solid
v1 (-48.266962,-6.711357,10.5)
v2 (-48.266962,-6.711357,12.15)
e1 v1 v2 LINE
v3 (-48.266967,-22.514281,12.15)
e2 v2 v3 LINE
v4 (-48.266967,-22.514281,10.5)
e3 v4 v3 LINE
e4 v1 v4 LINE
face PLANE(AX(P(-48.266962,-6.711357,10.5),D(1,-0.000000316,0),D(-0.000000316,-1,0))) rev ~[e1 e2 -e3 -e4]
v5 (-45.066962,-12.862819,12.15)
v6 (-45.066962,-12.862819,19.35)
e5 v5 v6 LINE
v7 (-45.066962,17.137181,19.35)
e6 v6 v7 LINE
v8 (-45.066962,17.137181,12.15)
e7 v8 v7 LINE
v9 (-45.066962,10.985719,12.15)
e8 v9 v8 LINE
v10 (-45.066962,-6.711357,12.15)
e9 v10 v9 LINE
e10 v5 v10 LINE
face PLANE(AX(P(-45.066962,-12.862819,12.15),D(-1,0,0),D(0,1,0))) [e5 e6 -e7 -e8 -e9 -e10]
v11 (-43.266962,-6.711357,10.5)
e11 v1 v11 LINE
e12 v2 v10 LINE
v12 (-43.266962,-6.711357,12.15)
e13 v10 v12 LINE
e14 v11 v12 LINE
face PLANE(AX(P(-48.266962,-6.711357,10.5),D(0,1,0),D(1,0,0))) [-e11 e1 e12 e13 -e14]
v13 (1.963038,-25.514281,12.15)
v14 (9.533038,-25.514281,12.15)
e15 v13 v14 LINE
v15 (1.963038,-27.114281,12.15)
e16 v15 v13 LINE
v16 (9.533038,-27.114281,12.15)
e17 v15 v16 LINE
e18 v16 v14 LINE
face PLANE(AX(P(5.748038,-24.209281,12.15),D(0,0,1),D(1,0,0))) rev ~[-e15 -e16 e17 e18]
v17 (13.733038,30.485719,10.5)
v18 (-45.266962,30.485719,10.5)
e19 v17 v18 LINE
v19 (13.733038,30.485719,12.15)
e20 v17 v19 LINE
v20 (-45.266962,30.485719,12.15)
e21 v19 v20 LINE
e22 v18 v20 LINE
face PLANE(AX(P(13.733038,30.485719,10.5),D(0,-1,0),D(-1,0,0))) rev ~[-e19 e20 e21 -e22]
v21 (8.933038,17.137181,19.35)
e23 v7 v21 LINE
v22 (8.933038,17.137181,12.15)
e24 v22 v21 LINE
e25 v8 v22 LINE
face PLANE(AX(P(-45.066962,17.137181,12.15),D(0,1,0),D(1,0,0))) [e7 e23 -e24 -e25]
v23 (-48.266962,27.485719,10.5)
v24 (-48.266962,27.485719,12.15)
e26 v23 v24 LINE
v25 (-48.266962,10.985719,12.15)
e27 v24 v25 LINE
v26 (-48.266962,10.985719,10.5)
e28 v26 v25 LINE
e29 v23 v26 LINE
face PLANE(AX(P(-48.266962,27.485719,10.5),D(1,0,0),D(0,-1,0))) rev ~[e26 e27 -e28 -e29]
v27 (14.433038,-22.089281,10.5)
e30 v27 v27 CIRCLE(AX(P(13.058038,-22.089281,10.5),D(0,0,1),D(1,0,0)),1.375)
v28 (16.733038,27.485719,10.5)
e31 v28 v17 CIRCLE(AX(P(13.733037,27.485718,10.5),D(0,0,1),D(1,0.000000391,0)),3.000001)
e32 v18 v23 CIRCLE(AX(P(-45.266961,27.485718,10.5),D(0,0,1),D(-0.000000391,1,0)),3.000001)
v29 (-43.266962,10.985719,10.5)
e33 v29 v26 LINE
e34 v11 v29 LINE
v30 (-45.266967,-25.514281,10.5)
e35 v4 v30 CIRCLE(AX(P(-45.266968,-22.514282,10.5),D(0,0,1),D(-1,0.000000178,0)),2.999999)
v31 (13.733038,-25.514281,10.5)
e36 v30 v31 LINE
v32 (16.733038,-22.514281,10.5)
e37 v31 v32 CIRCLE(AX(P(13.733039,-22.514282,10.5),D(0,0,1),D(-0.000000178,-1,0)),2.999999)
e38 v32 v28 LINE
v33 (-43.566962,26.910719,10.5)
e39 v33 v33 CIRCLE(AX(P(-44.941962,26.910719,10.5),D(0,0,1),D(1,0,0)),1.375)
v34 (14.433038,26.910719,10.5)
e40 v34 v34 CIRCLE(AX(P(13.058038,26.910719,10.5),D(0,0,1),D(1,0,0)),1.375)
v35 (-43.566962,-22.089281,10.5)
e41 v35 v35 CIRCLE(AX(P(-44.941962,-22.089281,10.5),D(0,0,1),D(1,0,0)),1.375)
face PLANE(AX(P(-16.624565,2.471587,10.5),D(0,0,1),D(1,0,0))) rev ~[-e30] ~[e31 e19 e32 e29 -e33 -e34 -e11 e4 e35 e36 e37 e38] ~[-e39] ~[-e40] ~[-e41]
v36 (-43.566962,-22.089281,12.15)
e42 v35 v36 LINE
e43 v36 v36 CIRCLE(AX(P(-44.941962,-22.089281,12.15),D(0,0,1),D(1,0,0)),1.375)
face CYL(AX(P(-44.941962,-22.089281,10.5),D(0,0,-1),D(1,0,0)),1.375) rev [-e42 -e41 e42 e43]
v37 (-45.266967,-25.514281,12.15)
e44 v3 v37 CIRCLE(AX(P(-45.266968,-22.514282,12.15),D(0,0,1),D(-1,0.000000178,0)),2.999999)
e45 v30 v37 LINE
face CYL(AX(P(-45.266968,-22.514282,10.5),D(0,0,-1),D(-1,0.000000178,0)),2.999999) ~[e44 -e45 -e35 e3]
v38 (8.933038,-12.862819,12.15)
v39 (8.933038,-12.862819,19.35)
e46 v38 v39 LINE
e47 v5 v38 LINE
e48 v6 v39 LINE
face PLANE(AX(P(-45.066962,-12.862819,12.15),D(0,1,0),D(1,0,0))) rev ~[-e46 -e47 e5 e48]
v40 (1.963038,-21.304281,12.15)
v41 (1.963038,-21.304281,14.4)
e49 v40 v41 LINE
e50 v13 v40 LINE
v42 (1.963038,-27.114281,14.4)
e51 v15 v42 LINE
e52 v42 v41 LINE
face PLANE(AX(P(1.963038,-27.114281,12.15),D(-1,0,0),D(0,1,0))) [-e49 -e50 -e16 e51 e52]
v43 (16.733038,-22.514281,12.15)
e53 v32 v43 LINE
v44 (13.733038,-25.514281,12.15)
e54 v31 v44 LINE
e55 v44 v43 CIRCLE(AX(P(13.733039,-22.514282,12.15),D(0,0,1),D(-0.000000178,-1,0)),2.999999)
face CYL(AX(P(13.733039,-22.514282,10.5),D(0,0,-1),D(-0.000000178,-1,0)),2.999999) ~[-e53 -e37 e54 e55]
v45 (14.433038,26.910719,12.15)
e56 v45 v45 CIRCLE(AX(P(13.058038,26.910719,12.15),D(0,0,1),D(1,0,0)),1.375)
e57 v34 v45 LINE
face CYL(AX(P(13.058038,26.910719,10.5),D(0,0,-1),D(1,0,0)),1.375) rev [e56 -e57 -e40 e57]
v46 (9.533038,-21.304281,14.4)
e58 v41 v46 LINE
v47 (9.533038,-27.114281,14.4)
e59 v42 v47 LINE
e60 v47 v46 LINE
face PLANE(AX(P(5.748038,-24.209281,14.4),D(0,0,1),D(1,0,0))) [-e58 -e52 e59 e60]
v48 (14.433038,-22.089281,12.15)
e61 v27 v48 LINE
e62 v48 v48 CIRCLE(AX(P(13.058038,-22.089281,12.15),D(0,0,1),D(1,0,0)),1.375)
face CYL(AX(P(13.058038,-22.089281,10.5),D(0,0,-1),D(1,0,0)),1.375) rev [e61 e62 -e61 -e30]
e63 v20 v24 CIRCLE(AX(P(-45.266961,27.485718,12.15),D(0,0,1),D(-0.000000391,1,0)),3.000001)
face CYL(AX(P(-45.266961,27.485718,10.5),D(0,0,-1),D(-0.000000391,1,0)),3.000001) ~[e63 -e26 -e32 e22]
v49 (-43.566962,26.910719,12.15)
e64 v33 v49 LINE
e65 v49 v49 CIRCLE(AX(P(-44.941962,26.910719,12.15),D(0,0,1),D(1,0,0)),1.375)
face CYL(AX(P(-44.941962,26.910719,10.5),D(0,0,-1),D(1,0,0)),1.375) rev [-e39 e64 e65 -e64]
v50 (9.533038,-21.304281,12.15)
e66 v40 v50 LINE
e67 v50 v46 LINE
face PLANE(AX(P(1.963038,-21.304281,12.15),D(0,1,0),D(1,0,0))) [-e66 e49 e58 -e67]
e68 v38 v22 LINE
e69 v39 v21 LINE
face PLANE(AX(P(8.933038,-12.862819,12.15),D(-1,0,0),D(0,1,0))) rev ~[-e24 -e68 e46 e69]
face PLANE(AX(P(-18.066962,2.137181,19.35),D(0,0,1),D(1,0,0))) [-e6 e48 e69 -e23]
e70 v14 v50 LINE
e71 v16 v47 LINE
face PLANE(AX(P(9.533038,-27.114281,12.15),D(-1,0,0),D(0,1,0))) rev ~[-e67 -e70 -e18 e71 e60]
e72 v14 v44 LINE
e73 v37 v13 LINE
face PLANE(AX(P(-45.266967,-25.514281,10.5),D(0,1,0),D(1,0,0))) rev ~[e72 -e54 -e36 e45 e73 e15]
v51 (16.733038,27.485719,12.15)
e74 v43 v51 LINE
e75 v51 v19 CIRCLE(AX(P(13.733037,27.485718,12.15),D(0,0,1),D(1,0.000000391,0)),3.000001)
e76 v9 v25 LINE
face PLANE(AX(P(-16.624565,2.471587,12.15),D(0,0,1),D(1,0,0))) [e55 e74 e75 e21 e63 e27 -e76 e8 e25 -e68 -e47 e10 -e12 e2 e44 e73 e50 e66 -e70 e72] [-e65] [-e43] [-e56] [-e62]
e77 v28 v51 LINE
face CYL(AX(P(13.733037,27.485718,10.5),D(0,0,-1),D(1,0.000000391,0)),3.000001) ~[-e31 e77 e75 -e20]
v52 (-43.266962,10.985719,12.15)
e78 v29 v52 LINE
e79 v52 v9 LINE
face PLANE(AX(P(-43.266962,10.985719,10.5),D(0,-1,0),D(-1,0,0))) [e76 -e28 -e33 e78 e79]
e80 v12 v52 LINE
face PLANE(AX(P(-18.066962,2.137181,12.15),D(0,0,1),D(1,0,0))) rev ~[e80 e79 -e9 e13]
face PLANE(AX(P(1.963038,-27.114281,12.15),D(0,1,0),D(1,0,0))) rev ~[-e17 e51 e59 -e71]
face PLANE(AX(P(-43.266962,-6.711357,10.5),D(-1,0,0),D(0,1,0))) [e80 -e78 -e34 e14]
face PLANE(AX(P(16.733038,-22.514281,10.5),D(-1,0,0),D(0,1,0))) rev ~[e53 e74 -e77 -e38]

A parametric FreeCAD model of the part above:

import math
import FreeCAD as App
import Part
import Sketcher
from FreeCAD import Vector


def add_polygon(sketch, points):
    """Adds a closed chain of lines whose ends are joined by coincident constraints."""
    first, n = sketch.GeometryCount, len(points)
    for a, b in zip(points, points[1:] + points[:1]):
        sketch.addGeometry(Part.LineSegment(App.Vector(*a, 0), App.Vector(*b, 0)), False)
    for i in range(n):
        sketch.addConstraint(Sketcher.Constraint("Coincident", first + i, 2, first + (i + 1) % n, 1))

doc = App.newDocument("Part")
body = doc.addObject("PartDesign::Body", "Body")

# Sketch on XY plane
sketch1 = doc.addObject("Sketcher::SketchObject", "Sketch")
body.addObject(sketch1)
sketch1.AttachmentSupport = (doc.XY_Plane, [""])
sketch1.MapMode = "FlatFace"
sketch1.AttachmentOffset = App.Placement(Vector(0, 0, 10.5), App.Rotation())
sketch1.addGeometry([
    Part.LineSegment(Vector(-48.266962, 27.485719, 0), Vector(-48.266962, 10.985719, 0)),  # 0
    Part.LineSegment(Vector(-48.266962, 10.985719, 0), Vector(-43.266962, 10.985719, 0)),  # 1
    Part.LineSegment(Vector(-43.266962, 10.985719, 0), Vector(-43.266962, -6.711357, 0)),  # 2
    Part.LineSegment(Vector(-43.266962, -6.711357, 0), Vector(-48.266962, -6.711357, 0)),  # 3
    Part.LineSegment(Vector(-48.266962, -6.711357, 0), Vector(-48.266967, -22.514281, 0)),  # 4
    Part.ArcOfCircle(Part.Circle(Vector(-45.266968, -22.514282, 0), Vector(0, 0, 1), 2.999999), math.radians(179.99999), math.radians(270.00001)),  # 5
    Part.LineSegment(Vector(-45.266967, -25.514281, 0), Vector(13.733038, -25.514281, 0)),  # 6
    Part.ArcOfCircle(Part.Circle(Vector(13.733039, -22.514282, 0), Vector(0, 0, 1), 2.999999), math.radians(-90.00001), math.radians(0.00001)),  # 7
    Part.LineSegment(Vector(16.733038, -22.514281, 0), Vector(16.733038, 27.485719, 0)),  # 8
    Part.ArcOfCircle(Part.Circle(Vector(13.733037, 27.485718, 0), Vector(0, 0, 1), 3.000001), math.radians(0.000022), math.radians(89.999978)),  # 9
    Part.LineSegment(Vector(13.733038, 30.485719, 0), Vector(-45.266962, 30.485719, 0)),  # 10
    Part.ArcOfCircle(Part.Circle(Vector(-45.266961, 27.485718, 0), Vector(0, 0, 1), 3.000001), math.radians(90.000022), math.radians(179.999978)),  # 11
    Part.Circle(Vector(-44.941962, -22.089281, 0), Vector(0, 0, 1), 1.375),  # 12
    Part.Circle(Vector(13.058038, -22.089281, 0), Vector(0, 0, 1), 1.375),  # 13
    Part.Circle(Vector(-44.941962, 26.910719, 0), Vector(0, 0, 1), 1.375),  # 14
    Part.Circle(Vector(13.058038, 26.910719, 0), Vector(0, 0, 1), 1.375),  # 15
], False)
sketch1.addConstraint([
    Sketcher.Constraint("Coincident", 0, 2, 1, 1),
    Sketcher.Constraint("Coincident", 1, 2, 2, 1),
    Sketcher.Constraint("Coincident", 2, 2, 3, 1),
    Sketcher.Constraint("Coincident", 3, 2, 4, 1),
    Sketcher.Constraint("Tangent", 4, 2, 5, 1),
    Sketcher.Constraint("Tangent", 5, 2, 6, 1),
    Sketcher.Constraint("Tangent", 6, 2, 7, 1),
    Sketcher.Constraint("Tangent", 7, 2, 8, 1),
    Sketcher.Constraint("Tangent", 8, 2, 9, 1),
    Sketcher.Constraint("Tangent", 9, 2, 10, 1),
    Sketcher.Constraint("Tangent", 10, 2, 11, 1),
    Sketcher.Constraint("Tangent", 11, 2, 0, 1),
    Sketcher.Constraint("Vertical", 0),
    Sketcher.Constraint("Horizontal", 1),
    Sketcher.Constraint("Vertical", 2),
    Sketcher.Constraint("Horizontal", 3),
    Sketcher.Constraint("Horizontal", 6),
    Sketcher.Constraint("Vertical", 8),
    Sketcher.Constraint("Horizontal", 10),
    Sketcher.Constraint("Equal", 5, 7),
    Sketcher.Constraint("Equal", 7, 9),
    Sketcher.Constraint("Equal", 9, 11),
    Sketcher.Constraint("Equal", 12, 13),
    Sketcher.Constraint("Equal", 13, 14),
    Sketcher.Constraint("Equal", 14, 15),
    Sketcher.Constraint("Horizontal", 12, 3, 13, 3),
    Sketcher.Constraint("Horizontal", 14, 3, 15, 3),
    Sketcher.Constraint("Horizontal", 7, 3, 4, 2),
    Sketcher.Constraint("Vertical", 12, 3, 14, 3),
    Sketcher.Constraint("Vertical", 13, 3, 15, 3),
    Sketcher.Constraint("Vertical", 0, 2, 3, 2),
    Sketcher.Constraint("Radius", 5, 2.999999),
    Sketcher.Constraint("Diameter", 12, 2.75),
    Sketcher.Constraint("DistanceX", 1, 1, 1, 2, 5.0),
    Sketcher.Constraint("DistanceX", 10, 2, 10, 1, 59.0),
    Sketcher.Constraint("DistanceY", 8, 1, 8, 2, 50.0),
    Sketcher.Constraint("DistanceY", 0, 2, 0, 1, 16.5),
    Sketcher.Constraint("DistanceX", 12, 3, 13, 3, 58.0),
    Sketcher.Constraint("DistanceY", 12, 3, 14, 3, 49.0),
    Sketcher.Constraint("DistanceY", 5, 3, 12, 3, 0.425001),
    Sketcher.Constraint("DistanceX", 11, 3, 12, 3, 0.324999),
    Sketcher.Constraint("DistanceY", 2, 2, 2, 1, 17.697076),
    Sketcher.Constraint("DistanceY", 5, 3, -1, 1, 22.514282),
    Sketcher.Constraint("DistanceX", -1, 1, 7, 3, 13.733039),
])
pad1 = doc.addObject("PartDesign::Pad", "Pad")
body.addObject(pad1)
pad1.Profile = sketch1
pad1.Length = 1.65

# Sketch on XY plane
sketch2 = doc.addObject("Sketcher::SketchObject", "Sketch001")
body.addObject(sketch2)
sketch2.AttachmentSupport = (doc.XY_Plane, [""])
sketch2.MapMode = "FlatFace"
sketch2.AttachmentOffset = App.Placement(Vector(0, 0, 12.15), App.Rotation())
add_polygon(sketch2, [(-45.066962, 17.137181), (-45.066962, -12.862819), (8.933038, -12.862819), (8.933038, 17.137181)])  # lines 0-3
sketch2.addConstraint([
    Sketcher.Constraint("Vertical", 0),
    Sketcher.Constraint("Horizontal", 1),
    Sketcher.Constraint("Vertical", 2),
    Sketcher.Constraint("Horizontal", 3),
    Sketcher.Constraint("DistanceX", 1, 1, 1, 2, 54.0),
    Sketcher.Constraint("DistanceY", 0, 2, 0, 1, 30.0),
    Sketcher.Constraint("DistanceX", 0, 2, -1, 1, 45.066962),
    Sketcher.Constraint("DistanceY", 0, 2, -1, 1, 12.862819),
])
pad2 = doc.addObject("PartDesign::Pad", "Pad001")
body.addObject(pad2)
pad2.Profile = sketch2
pad2.Length = 7.2

# Sketch on XY plane
sketch3 = doc.addObject("Sketcher::SketchObject", "Sketch002")
body.addObject(sketch3)
sketch3.AttachmentSupport = (doc.XY_Plane, [""])
sketch3.MapMode = "FlatFace"
sketch3.AttachmentOffset = App.Placement(Vector(0, 0, 12.15), App.Rotation())
add_polygon(sketch3, [(1.963038, -21.304281), (1.963038, -27.114281), (9.533038, -27.114281), (9.533038, -21.304281)])  # lines 0-3
sketch3.addConstraint([
    Sketcher.Constraint("Vertical", 0),
    Sketcher.Constraint("Horizontal", 1),
    Sketcher.Constraint("Vertical", 2),
    Sketcher.Constraint("Horizontal", 3),
    Sketcher.Constraint("DistanceX", 1, 1, 1, 2, 7.57),
    Sketcher.Constraint("DistanceY", 0, 2, 0, 1, 5.81),
    Sketcher.Constraint("DistanceX", -1, 1, 0, 2, 1.963038),
    Sketcher.Constraint("DistanceY", 0, 2, -1, 1, 27.114281),
])
pad3 = doc.addObject("PartDesign::Pad", "Pad002")
body.addObject(pad3)
pad3.Profile = sketch3
pad3.Length = 2.25

doc.recompute()
